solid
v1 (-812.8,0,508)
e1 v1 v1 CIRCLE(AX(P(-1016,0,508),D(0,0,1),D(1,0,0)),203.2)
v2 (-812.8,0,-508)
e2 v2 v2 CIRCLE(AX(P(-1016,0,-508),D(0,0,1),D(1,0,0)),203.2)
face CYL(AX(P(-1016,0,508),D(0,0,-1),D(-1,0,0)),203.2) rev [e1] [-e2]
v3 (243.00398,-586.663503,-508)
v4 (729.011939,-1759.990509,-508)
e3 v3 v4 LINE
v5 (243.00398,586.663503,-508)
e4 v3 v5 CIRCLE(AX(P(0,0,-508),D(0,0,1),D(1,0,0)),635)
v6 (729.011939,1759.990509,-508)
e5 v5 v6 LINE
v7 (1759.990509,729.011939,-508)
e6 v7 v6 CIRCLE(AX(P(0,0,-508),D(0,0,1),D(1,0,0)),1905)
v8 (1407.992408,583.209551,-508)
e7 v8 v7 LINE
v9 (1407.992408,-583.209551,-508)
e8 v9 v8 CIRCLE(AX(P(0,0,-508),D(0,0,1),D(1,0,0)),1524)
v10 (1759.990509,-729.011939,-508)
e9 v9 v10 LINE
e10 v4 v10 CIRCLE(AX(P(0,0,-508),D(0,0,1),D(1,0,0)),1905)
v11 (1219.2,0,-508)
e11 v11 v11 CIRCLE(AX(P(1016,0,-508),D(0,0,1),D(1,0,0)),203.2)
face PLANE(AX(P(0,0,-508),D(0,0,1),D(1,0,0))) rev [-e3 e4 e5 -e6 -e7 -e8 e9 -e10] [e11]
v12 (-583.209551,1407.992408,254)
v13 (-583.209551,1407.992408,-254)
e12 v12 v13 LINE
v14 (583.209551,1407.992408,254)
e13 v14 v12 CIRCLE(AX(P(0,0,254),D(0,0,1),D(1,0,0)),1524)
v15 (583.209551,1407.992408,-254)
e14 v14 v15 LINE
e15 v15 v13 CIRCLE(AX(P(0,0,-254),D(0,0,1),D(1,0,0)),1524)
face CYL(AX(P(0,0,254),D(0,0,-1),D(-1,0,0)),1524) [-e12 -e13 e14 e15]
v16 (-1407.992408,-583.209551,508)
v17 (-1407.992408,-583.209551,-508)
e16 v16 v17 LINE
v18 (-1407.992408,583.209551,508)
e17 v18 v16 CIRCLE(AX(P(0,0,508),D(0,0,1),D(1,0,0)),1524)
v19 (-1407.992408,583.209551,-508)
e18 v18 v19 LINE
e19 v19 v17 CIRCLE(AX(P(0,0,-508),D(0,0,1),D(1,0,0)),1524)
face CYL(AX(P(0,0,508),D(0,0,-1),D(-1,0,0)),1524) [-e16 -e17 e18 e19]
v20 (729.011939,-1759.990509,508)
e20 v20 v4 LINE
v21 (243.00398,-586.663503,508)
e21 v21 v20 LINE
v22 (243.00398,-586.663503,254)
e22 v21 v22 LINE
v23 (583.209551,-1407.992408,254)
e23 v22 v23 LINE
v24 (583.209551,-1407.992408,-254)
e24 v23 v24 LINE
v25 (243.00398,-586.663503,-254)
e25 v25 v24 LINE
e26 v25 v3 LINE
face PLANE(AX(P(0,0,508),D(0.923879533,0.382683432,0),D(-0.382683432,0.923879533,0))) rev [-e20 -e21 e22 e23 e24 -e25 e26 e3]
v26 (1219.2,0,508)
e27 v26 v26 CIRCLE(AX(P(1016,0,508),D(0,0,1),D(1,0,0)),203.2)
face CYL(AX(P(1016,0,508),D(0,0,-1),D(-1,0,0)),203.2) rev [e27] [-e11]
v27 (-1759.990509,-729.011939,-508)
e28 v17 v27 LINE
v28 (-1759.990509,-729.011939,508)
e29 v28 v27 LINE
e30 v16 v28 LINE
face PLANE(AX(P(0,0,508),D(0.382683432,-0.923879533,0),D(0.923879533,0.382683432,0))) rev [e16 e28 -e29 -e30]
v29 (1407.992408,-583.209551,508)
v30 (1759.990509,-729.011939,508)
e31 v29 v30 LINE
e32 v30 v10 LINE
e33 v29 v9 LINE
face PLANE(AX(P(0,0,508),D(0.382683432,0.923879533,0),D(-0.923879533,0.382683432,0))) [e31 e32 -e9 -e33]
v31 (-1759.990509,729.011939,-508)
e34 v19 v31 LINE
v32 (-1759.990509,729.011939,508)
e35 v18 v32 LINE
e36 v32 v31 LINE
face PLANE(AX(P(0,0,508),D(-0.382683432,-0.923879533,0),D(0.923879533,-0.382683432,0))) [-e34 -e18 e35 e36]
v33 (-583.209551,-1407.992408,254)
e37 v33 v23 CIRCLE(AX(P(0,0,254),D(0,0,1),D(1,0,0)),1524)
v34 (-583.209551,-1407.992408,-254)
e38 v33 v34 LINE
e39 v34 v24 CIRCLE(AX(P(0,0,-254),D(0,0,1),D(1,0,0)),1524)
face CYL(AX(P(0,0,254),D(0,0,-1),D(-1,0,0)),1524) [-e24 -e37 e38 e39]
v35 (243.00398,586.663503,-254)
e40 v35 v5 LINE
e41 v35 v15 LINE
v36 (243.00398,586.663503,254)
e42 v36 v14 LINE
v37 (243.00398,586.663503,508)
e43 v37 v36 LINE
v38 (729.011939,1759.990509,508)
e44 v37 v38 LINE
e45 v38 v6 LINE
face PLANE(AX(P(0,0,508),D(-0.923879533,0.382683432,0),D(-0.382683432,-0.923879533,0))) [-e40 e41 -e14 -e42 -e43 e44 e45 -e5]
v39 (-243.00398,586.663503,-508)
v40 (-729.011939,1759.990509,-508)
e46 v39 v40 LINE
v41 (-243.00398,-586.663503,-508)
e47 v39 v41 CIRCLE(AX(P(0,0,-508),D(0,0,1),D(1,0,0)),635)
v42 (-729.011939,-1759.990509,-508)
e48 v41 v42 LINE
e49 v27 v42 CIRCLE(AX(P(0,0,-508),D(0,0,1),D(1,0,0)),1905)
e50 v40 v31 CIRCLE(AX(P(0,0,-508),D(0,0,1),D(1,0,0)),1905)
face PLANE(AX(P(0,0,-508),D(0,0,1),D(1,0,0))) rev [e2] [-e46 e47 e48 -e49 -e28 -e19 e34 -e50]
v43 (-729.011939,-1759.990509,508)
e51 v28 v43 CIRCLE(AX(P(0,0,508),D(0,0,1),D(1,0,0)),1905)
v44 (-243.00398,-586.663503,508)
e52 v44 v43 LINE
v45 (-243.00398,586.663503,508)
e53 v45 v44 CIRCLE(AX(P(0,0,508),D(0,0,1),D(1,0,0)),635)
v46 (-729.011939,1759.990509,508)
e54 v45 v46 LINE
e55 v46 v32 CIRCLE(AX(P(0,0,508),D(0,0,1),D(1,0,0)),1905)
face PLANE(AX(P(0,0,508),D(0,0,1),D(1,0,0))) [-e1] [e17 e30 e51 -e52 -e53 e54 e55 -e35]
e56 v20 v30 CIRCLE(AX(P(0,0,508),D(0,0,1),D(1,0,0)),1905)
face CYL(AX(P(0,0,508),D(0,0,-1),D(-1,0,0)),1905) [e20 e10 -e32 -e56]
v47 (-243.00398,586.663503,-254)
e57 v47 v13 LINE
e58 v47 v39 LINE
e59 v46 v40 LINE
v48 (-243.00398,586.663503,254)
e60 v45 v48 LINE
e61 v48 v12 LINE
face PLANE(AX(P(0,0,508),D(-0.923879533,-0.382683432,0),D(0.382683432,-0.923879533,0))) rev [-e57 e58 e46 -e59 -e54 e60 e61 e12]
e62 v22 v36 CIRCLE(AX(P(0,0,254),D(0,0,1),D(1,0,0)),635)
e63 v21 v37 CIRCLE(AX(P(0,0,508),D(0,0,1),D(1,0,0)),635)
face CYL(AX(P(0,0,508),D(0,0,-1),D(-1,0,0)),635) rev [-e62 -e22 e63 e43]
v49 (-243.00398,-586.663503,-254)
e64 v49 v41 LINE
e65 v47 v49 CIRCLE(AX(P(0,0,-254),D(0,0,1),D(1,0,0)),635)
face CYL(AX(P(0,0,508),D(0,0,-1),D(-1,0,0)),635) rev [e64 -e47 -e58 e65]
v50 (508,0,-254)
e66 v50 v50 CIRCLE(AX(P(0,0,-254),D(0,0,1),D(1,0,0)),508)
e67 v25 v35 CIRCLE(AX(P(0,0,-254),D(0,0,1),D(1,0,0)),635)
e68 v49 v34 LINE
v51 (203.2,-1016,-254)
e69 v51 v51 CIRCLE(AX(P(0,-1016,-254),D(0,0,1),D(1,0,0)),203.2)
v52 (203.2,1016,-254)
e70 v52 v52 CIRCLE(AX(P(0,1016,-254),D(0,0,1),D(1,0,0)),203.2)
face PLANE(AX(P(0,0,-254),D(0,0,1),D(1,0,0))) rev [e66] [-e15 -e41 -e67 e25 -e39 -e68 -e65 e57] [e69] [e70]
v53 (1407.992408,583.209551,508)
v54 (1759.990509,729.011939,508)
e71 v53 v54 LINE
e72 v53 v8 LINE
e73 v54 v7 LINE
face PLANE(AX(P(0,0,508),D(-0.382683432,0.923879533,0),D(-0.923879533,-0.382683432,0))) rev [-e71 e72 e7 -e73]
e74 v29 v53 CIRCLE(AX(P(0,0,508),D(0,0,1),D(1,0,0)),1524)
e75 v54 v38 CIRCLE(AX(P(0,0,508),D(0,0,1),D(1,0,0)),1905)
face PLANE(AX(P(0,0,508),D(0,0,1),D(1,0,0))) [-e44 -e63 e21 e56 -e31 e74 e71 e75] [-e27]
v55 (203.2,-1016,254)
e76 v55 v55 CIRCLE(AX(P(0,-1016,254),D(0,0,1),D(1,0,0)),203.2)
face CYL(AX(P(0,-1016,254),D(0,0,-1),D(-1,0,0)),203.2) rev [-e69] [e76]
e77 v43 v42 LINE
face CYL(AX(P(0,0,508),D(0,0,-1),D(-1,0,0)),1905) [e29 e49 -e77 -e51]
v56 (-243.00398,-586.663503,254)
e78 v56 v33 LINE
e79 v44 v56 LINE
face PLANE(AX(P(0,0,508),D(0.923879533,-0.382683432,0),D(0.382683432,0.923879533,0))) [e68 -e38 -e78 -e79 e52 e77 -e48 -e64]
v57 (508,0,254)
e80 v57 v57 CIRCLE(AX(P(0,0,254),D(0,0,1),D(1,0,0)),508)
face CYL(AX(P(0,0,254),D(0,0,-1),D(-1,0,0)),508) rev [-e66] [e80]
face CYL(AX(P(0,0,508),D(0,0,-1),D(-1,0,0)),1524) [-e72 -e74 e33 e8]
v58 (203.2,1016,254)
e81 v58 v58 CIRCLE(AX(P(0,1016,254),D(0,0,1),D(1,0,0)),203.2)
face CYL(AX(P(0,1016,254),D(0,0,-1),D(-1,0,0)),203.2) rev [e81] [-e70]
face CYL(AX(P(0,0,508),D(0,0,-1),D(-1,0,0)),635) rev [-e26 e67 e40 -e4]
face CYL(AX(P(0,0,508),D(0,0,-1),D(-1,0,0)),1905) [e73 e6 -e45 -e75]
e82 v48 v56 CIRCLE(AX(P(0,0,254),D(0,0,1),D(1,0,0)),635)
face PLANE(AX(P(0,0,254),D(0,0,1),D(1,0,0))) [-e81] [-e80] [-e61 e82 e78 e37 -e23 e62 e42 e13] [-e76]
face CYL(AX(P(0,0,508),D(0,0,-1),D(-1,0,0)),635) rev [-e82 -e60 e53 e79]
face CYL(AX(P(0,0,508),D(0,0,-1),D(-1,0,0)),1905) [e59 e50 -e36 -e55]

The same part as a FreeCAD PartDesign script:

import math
import FreeCAD as App
import Part
import Sketcher

V = App.Vector
Q = App.Units.Quantity

doc = App.newDocument("Part")
body = doc.addObject("PartDesign::Body", "Body")
body.AllowCompound = True

# Sketch on XY plane
sketch1 = body.newObject("Sketcher::SketchObject", "Sketch")
sketch1.AttachmentSupport = (doc.getObject("XY_Plane"), [""])
sketch1.MapMode = "FlatFace"
sketch1.addGeometry([
    Part.ArcOfCircle(Part.Circle(V(0, 0, 0), V(0, 0, 1), 1905), math.radians(113), math.radians(157)),  # 0
    Part.LineSegment(V(-1760, 729, 0), V(-1408, 583, 0)),  # 1
    Part.ArcOfCircle(Part.Circle(V(0, 0, 0), V(0, 0, 1), 1524), math.radians(157), math.radians(202)),  # 2
    Part.LineSegment(V(-1408, -583, 0), V(-1760, -729, 0)),  # 3
    Part.ArcOfCircle(Part.Circle(V(0, 0, 0), V(0, 0, 1), 1905), math.radians(-157), math.radians(-113)),  # 4
    Part.LineSegment(V(-729, -1760, 0), V(-243, -587, 0)),  # 5
    Part.ArcOfCircle(Part.Circle(V(0, 0, 0), V(0, 0, 1), 635), math.radians(113), math.radians(247)),  # 6
    Part.LineSegment(V(-243, 587, 0), V(-729, 1760, 0)),  # 7
    Part.Circle(V(-1016, 0, 0), V(0, 0, 1), 203),  # 8
    Part.LineSegment(V(1408, 583, 0), V(1760, 729, 0)),  # 9
    Part.ArcOfCircle(Part.Circle(V(0, 0, 0), V(0, 0, 1), 1905), math.radians(23), math.radians(67)),  # 10
    Part.LineSegment(V(729, 1760, 0), V(243, 587, 0)),  # 11
    Part.ArcOfCircle(Part.Circle(V(0, 0, 0), V(0, 0, 1), 635), math.radians(0), math.radians(67)),  # 12
    Part.ArcOfCircle(Part.Circle(V(0, 0, 0), V(0, 0, 1), 635), math.radians(-67), math.radians(0)),  # 13
    Part.LineSegment(V(243, -587, 0), V(729, -1760, 0)),  # 14
    Part.ArcOfCircle(Part.Circle(V(0, 0, 0), V(0, 0, 1), 1905), math.radians(-67), math.radians(-23)),  # 15
    Part.LineSegment(V(1760, -729, 0), V(1408, -583, 0)),  # 16
    Part.ArcOfCircle(Part.Circle(V(0, 0, 0), V(0, 0, 1), 1524), math.radians(-23), math.radians(0)),  # 17
    Part.ArcOfCircle(Part.Circle(V(0, 0, 0), V(0, 0, 1), 1524), math.radians(0), math.radians(23)),  # 18
    Part.Circle(V(1016, 0, 0), V(0, 0, 1), 203),  # 19
], False)
sketch1.addConstraint([
    Sketcher.Constraint("Coincident", 0, 2, 1, 1),
    Sketcher.Constraint("Coincident", 1, 2, 2, 1),
    Sketcher.Constraint("Coincident", 2, 2, 3, 1),
    Sketcher.Constraint("Coincident", 3, 2, 4, 1),
    Sketcher.Constraint("Coincident", 4, 2, 5, 1),
    Sketcher.Constraint("Coincident", 5, 2, 6, 2),
    Sketcher.Constraint("Coincident", 6, 1, 7, 1),
    Sketcher.Constraint("Coincident", 7, 2, 0, 1),
    Sketcher.Constraint("Coincident", 9, 2, 10, 1),
    Sketcher.Constraint("Coincident", 10, 2, 11, 1),
    Sketcher.Constraint("Coincident", 11, 2, 12, 2),
    Sketcher.Constraint("Coincident", 12, 1, 13, 2),
    Sketcher.Constraint("Coincident", 13, 1, 14, 1),
    Sketcher.Constraint("Coincident", 14, 2, 15, 1),
    Sketcher.Constraint("Coincident", 15, 2, 16, 1),
    Sketcher.Constraint("Coincident", 16, 2, 17, 1),
    Sketcher.Constraint("Coincident", 17, 2, 18, 1),
    Sketcher.Constraint("Coincident", 18, 2, 9, 1),
    Sketcher.Constraint("Coincident", 0, 3, -1, 1),
    Sketcher.Constraint("Coincident", 2, 3, -1, 1),
    Sketcher.Constraint("Coincident", 4, 3, -1, 1),
    Sketcher.Constraint("Coincident", 6, 3, -1, 1),
    Sketcher.Constraint("Coincident", 10, 3, -1, 1),
    Sketcher.Constraint("Coincident", 12, 3, -1, 1),
    Sketcher.Constraint("Coincident", 13, 3, -1, 1),
    Sketcher.Constraint("Coincident", 15, 3, -1, 1),
    Sketcher.Constraint("Coincident", 17, 3, -1, 1),
    Sketcher.Constraint("Coincident", 18, 3, -1, 1),
    Sketcher.Constraint("Equal", 0, 4),
    Sketcher.Constraint("Equal", 4, 10),
    Sketcher.Constraint("Equal", 6, 12),
    Sketcher.Constraint("Equal", 10, 15),
    Sketcher.Constraint("Equal", 2, 17),
    Sketcher.Constraint("Equal", 8, 19),
    Sketcher.Constraint("Symmetric", 8, 3, 19, 3, -1, 1),
    Sketcher.Constraint("PointOnObject", 8, 3, -1),
    Sketcher.Constraint("PointOnObject", 12, 1, -1),
    Sketcher.Constraint("PointOnObject", 17, 2, -1),
    Sketcher.Constraint("Perpendicular", 1, 5),
    Sketcher.Constraint("Perpendicular", 3, 7),
    Sketcher.Constraint("Perpendicular", 7, 9),
    Sketcher.Constraint("Parallel", 5, 11),
    Sketcher.Constraint("Perpendicular", 9, 14),
    Sketcher.Constraint("Perpendicular", 11, 16),
    Sketcher.Constraint("Diameter", 8, Q("16 in")),
    Sketcher.Constraint("Radius", 0, Q("75 in")),
    Sketcher.Constraint("Radius", 2, Q("60 in")),
    Sketcher.Constraint("Radius", 6, Q("25 in")),
    Sketcher.Constraint("DistanceX", 8, 3, -1, 1, Q("40 in")),
    Sketcher.Constraint("Angle", 1, Q("-22.5 deg")),
    Sketcher.Constraint("Angle", 3, Q("-157.5 deg")),
    Sketcher.Constraint("DistanceX", 3, 2, 1, 2, Q("351.998102 mm")),
    Sketcher.Constraint("DistanceX", 16, 2, 9, 2, Q("351.998102 mm")),
    Sketcher.Constraint("DistanceY", -1, 1, 1, 2, Q("583.209551 mm")),
    Sketcher.Constraint("DistanceX", 5, 2, -1, 1, Q("243.00398 mm")),
    Sketcher.Constraint("DistanceX", 7, 2, -1, 1, Q("729.011939 mm")),
    Sketcher.Constraint("DistanceX", -1, 1, 9, 2, Q("1759.990509 mm")),
    Sketcher.Constraint("DistanceX", -1, 1, 11, 2, Q("243.00398 mm")),
    Sketcher.Constraint("DistanceX", -1, 1, 14, 2, Q("729.011939 mm")),
])
pad1 = body.newObject("PartDesign::Pad", "Pad")
pad1.Profile = sketch1
pad1.Length = Q("40 in")
pad1.Midplane = True

# Sketch on XY plane
sketch2 = body.newObject("Sketcher::SketchObject", "Sketch001")
sketch2.AttachmentSupport = (doc.getObject("XY_Plane"), [""])
sketch2.MapMode = "FlatFace"
sketch2.addGeometry([
    Part.LineSegment(V(243, 587, 0), V(583, 1408, 0)),  # 0
    Part.ArcOfCircle(Part.Circle(V(0, 0, 0), V(0, 0, 1), 1524), math.radians(67), math.radians(113)),  # 1
    Part.LineSegment(V(-583, 1408, 0), V(-243, 587, 0)),  # 2
    Part.ArcOfCircle(Part.Circle(V(0, 0, 0), V(0, 0, 1), 635), math.radians(113), math.radians(247)),  # 3
    Part.LineSegment(V(-243, -587, 0), V(-583, -1408, 0)),  # 4
    Part.ArcOfCircle(Part.Circle(V(0, 0, 0), V(0, 0, 1), 1524), math.radians(-113), math.radians(-67)),  # 5
    Part.LineSegment(V(583, -1408, 0), V(243, -587, 0)),  # 6
    Part.ArcOfCircle(Part.Circle(V(0, 0, 0), V(0, 0, 1), 635), math.radians(-67), math.radians(67)),  # 7
    Part.Circle(V(0, 0, 0), V(0, 0, 1), 508),  # 8
    Part.Circle(V(0, 1016, 0), V(0, 0, 1), 203),  # 9
    Part.Circle(V(0, -1016, 0), V(0, 0, 1), 203),  # 10
], False)
sketch2.addConstraint([
    Sketcher.Constraint("Coincident", 0, 2, 1, 1),
    Sketcher.Constraint("Coincident", 1, 2, 2, 1),
    Sketcher.Constraint("Coincident", 2, 2, 3, 1),
    Sketcher.Constraint("Coincident", 3, 2, 4, 1),
    Sketcher.Constraint("Coincident", 4, 2, 5, 1),
    Sketcher.Constraint("Coincident", 5, 2, 6, 1),
    Sketcher.Constraint("Coincident", 6, 2, 7, 1),
    Sketcher.Constraint("Coincident", 7, 2, 0, 1),
    Sketcher.Constraint("Coincident", 1, 3, -1, 1),
    Sketcher.Constraint("Coincident", 3, 3, -1, 1),
    Sketcher.Constraint("Coincident", 5, 3, -1, 1),
    Sketcher.Constraint("Coincident", 7, 3, -1, 1),
    Sketcher.Constraint("Coincident", 8, 3, -1, 1),
    Sketcher.Constraint("Equal", 1, 5),
    Sketcher.Constraint("Equal", 3, 7),
    Sketcher.Constraint("Equal", 9, 10),
    Sketcher.Constraint("Symmetric", 9, 3, 10, 3, -1, 1),
    Sketcher.Constraint("PointOnObject", 9, 3, -2),
    Sketcher.Constraint("Parallel", 0, 4),
    Sketcher.Constraint("Parallel", 2, 6),
    Sketcher.Constraint("Diameter", 8, Q("40 in")),
    Sketcher.Constraint("Diameter", 9, Q("16 in")),
    Sketcher.Constraint("Radius", 1, Q("60 in")),
    Sketcher.Constraint("Radius", 3, Q("25 in")),
    Sketcher.Constraint("DistanceY", -1, 1, 9, 3, Q("40 in")),
    Sketcher.Constraint("Angle", 0, Q("67.5 deg")),
    Sketcher.Constraint("Angle", 2, Q("-67.5 deg")),
    Sketcher.Constraint("DistanceX", -1, 1, 0, 2, Q("583.209551 mm")),
    Sketcher.Constraint("DistanceX", 2, 2, -1, 1, Q("243.00398 mm")),
    Sketcher.Constraint("DistanceX", 4, 2, -1, 1, Q("583.209551 mm")),
    Sketcher.Constraint("DistanceX", -1, 1, 6, 2, Q("243.00398 mm")),
])
pad2 = body.newObject("PartDesign::Pad", "Pad001")
pad2.Profile = sketch2
pad2.Length = Q("20 in")
pad2.Midplane = True

doc.recompute()
